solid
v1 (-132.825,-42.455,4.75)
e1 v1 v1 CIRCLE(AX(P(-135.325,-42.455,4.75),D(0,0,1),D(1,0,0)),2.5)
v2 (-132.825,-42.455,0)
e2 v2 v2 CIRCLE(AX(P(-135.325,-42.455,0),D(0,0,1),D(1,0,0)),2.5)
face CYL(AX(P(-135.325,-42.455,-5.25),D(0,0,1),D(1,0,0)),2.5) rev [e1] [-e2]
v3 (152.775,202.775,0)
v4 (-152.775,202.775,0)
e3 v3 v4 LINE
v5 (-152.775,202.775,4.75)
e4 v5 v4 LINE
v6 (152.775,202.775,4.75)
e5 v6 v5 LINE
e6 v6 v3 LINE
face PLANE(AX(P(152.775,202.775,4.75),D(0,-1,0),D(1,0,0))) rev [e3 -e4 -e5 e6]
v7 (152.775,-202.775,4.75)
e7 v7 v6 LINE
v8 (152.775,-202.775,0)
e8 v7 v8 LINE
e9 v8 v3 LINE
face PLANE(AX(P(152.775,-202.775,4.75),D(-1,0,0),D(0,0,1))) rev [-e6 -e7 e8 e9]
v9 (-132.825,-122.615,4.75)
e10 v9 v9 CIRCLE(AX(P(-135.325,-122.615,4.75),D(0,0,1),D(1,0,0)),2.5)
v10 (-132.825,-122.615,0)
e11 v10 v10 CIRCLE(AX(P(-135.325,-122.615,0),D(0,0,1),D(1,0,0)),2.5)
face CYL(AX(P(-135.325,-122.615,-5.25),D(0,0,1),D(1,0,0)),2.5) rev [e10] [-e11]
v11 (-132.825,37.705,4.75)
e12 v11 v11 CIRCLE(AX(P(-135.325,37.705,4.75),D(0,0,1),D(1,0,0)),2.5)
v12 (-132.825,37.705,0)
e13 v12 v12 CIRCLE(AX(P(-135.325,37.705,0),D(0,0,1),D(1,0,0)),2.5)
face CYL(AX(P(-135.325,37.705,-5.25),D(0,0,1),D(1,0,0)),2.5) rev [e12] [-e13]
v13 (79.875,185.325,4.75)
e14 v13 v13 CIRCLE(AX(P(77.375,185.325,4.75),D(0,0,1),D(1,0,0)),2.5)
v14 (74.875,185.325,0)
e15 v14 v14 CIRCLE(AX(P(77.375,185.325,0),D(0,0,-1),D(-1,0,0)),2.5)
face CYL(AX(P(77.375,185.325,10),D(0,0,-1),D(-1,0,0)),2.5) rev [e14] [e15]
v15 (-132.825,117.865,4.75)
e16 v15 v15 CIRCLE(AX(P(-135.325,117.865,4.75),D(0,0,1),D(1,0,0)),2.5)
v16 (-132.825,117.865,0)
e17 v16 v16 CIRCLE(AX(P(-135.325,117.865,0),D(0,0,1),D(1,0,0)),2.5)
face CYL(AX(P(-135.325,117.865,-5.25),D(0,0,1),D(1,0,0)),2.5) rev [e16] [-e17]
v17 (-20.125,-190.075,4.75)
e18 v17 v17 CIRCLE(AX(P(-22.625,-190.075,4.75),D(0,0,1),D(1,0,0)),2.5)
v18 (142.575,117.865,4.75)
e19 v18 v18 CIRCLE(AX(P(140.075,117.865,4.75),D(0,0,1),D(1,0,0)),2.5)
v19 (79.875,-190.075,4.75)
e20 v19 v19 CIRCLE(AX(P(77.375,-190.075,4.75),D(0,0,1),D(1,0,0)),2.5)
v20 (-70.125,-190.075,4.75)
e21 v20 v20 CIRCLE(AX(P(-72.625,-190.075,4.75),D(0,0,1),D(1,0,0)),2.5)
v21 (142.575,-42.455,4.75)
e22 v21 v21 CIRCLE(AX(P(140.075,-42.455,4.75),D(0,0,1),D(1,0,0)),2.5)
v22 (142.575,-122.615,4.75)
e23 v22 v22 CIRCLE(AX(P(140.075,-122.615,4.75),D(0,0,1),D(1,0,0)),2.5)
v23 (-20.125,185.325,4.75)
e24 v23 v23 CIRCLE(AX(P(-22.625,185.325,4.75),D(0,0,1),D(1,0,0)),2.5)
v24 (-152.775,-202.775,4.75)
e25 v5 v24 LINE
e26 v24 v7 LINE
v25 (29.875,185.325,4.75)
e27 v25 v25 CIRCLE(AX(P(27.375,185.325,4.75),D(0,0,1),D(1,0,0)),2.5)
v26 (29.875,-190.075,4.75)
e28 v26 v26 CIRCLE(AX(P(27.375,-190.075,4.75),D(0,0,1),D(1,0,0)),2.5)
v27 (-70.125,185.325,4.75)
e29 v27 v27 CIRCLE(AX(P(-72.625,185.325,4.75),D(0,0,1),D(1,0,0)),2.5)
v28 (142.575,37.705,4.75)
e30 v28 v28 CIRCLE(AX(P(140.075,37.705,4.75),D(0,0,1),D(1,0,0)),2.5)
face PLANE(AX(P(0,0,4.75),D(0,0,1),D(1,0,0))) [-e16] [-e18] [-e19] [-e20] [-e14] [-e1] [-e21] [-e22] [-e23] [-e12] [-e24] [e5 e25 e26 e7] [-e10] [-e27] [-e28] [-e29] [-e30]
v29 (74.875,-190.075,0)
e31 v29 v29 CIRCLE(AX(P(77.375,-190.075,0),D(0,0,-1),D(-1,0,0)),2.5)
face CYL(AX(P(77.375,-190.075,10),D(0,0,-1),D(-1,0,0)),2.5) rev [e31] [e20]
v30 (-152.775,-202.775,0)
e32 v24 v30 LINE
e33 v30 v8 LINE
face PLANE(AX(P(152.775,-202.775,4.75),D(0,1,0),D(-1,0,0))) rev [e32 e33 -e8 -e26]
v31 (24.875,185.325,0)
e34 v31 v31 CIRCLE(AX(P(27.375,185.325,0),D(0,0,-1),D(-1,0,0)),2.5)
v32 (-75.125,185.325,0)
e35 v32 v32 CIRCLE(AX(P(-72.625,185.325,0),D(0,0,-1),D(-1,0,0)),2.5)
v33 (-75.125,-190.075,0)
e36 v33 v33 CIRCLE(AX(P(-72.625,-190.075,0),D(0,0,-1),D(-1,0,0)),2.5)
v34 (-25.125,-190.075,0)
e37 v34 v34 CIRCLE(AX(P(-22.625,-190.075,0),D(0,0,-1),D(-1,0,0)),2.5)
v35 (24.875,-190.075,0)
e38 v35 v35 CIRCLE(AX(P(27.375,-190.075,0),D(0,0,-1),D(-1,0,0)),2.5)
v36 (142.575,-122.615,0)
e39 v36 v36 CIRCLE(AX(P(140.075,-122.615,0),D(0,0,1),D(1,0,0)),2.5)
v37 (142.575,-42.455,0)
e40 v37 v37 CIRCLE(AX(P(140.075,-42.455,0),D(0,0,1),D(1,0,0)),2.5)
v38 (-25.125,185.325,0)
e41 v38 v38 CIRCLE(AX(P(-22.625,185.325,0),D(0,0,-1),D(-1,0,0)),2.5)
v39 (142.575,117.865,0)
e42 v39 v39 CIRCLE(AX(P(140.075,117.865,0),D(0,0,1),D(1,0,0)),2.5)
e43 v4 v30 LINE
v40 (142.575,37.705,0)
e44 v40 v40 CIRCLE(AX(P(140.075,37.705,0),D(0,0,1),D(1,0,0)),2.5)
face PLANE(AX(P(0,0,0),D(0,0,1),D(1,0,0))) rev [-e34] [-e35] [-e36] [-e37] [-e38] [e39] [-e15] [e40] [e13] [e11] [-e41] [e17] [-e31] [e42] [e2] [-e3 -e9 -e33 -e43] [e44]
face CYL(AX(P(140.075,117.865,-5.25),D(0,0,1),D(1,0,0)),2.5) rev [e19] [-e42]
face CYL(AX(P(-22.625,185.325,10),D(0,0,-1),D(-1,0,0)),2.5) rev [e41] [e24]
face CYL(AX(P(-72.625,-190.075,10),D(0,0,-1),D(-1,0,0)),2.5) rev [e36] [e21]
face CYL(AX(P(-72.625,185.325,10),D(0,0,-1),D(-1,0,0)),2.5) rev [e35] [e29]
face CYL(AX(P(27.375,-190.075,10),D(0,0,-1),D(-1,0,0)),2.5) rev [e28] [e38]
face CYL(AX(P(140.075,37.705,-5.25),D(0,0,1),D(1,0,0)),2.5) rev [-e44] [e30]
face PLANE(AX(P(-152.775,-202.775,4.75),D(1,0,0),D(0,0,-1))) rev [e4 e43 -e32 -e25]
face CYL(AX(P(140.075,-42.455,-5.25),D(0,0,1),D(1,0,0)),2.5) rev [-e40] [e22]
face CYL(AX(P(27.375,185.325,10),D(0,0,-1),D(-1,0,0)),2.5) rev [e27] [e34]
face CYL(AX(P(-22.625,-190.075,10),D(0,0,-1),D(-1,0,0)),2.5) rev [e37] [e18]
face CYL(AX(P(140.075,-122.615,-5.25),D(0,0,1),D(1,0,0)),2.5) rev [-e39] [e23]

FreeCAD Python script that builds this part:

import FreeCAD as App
import Part
import Sketcher

V = App.Vector


def add_polygon(sketch, points):
    """Adds a closed chain of lines whose ends are joined by coincident constraints."""
    first, n = sketch.GeometryCount, len(points)
    for a, b in zip(points, points[1:] + points[:1]):
        sketch.addGeometry(Part.LineSegment(App.Vector(*a, 0), App.Vector(*b, 0)), False)
    for i in range(n):
        sketch.addConstraint(Sketcher.Constraint("Coincident", first + i, 2, first + (i + 1) % n, 1))

doc = App.newDocument("Part")
body = doc.addObject("PartDesign::Body", "Body")

sketch1 = body.newObject("Sketcher::SketchObject", "Sketch")
sketch1.AttachmentSupport = (doc.getObject("XY_Plane"), [""])
sketch1.MapMode = "FlatFace"
add_polygon(sketch1, [(-153, 203), (-153, -203), (153, -203), (153, 203)])
sketch1.addConstraint(Sketcher.Constraint("Vertical", 0))
sketch1.addConstraint(Sketcher.Constraint("Horizontal", 1))
sketch1.addConstraint(Sketcher.Constraint("Vertical", 2))
sketch1.addConstraint(Sketcher.Constraint("Horizontal", 3))
sketch1.addConstraint(Sketcher.Constraint("Symmetric", 0, 2, 2, 2, -1, 1))
sketch1.addConstraint(Sketcher.Constraint("DistanceX", 1, 1, 1, 2, 305.55))
sketch1.addConstraint(Sketcher.Constraint("DistanceY", 0, 2, 0, 1, 405.55))
pad1 = body.newObject("PartDesign::Pad", "Pad")
pad1.Profile = sketch1
pad1.Length = 4.75

sketch2 = body.newObject("Sketcher::SketchObject", "Sketch001")
sketch2.AttachmentSupport = (doc.getObject("XY_Plane"), [""])
sketch2.MapMode = "FlatFace"
sketch2.AttachmentOffset = App.Placement(V(0, 0, 4.75), App.Rotation())
sketch2.addGeometry(Part.Circle(V(140.1, 37.7, 0), V(0, 0, 1), 2.5), False)
sketch2.addGeometry(Part.Circle(V(140.1, 117.9, 0), V(0, 0, 1), 2.5), False)
sketch2.addGeometry(Part.Circle(V(140.1, -42.5, 0), V(0, 0, 1), 2.5), False)
sketch2.addGeometry(Part.Circle(V(140.1, -122.6, 0), V(0, 0, 1), 2.5), False)
sketch2.addConstraint(Sketcher.Constraint("Equal", 0, 1))
sketch2.addConstraint(Sketcher.Constraint("Equal", 1, 2))
sketch2.addConstraint(Sketcher.Constraint("Equal", 2, 3))
sketch2.addConstraint(Sketcher.Constraint("Vertical", 0, 3, 1, 3))
sketch2.addConstraint(Sketcher.Constraint("Vertical", 1, 3, 2, 3))
sketch2.addConstraint(Sketcher.Constraint("Vertical", 2, 3, 3, 3))
sketch2.addConstraint(Sketcher.Constraint("Diameter", 0, 5.0))
sketch2.addConstraint(Sketcher.Constraint("DistanceY", 0, 3, 1, 3, 80.16))
sketch2.addConstraint(Sketcher.Constraint("DistanceY", 2, 3, 0, 3, 80.16))
sketch2.addConstraint(Sketcher.Constraint("DistanceY", 3, 3, 2, 3, 80.16))
sketch2.addConstraint(Sketcher.Constraint("DistanceX", -1, 1, 0, 3, 140.075))
sketch2.addConstraint(Sketcher.Constraint("DistanceY", -1, 1, 0, 3, 37.705))
pocket1 = body.newObject("PartDesign::Pocket", "Pocket")
pocket1.Profile = sketch2
pocket1.Length = 10

sketch3 = body.newObject("Sketcher::SketchObject", "Sketch002")
sketch3.AttachmentSupport = (doc.getObject("XY_Plane"), [""])
sketch3.MapMode = "FlatFace"
sketch3.AttachmentOffset = App.Placement(V(0, 0, 4.75), App.Rotation())
sketch3.addGeometry(Part.Circle(V(-135.3, -122.6, 0), V(0, 0, 1), 2.5), False)
sketch3.addGeometry(Part.Circle(V(-135.3, -42.5, 0), V(0, 0, 1), 2.5), False)
sketch3.addGeometry(Part.Circle(V(-135.3, 37.7, 0), V(0, 0, 1), 2.5), False)
sketch3.addGeometry(Part.Circle(V(-135.3, 117.9, 0), V(0, 0, 1), 2.5), False)
sketch3.addConstraint(Sketcher.Constraint("Equal", 0, 1))
sketch3.addConstraint(Sketcher.Constraint("Equal", 1, 2))
sketch3.addConstraint(Sketcher.Constraint("Equal", 2, 3))
sketch3.addConstraint(Sketcher.Constraint("Vertical", 0, 3, 1, 3))
sketch3.addConstraint(Sketcher.Constraint("Vertical", 1, 3, 2, 3))
sketch3.addConstraint(Sketcher.Constraint("Vertical", 2, 3, 3, 3))
sketch3.addConstraint(Sketcher.Constraint("Diameter", 0, 5.0))
sketch3.addConstraint(Sketcher.Constraint("DistanceY", 0, 3, 1, 3, 80.16))
sketch3.addConstraint(Sketcher.Constraint("DistanceY", 1, 3, 2, 3, 80.16))
sketch3.addConstraint(Sketcher.Constraint("DistanceY", 2, 3, 3, 3, 80.16))
sketch3.addConstraint(Sketcher.Constraint("DistanceX", 0, 3, -1, 1, 135.325))
sketch3.addConstraint(Sketcher.Constraint("DistanceY", 0, 3, -1, 1, 122.615))
pocket2 = body.newObject("PartDesign::Pocket", "Pocket001")
pocket2.Profile = sketch3
pocket2.Length = 10

sketch4 = body.newObject("Sketcher::SketchObject", "Sketch003")
sketch4.AttachmentSupport = (doc.getObject("XY_Plane"), [""])
sketch4.MapMode = "FlatFace"
sketch4.addGeometry(Part.Circle(V(-22.6, 185.3, 0), V(0, 0, 1), 2.5), False)
sketch4.addGeometry(Part.Circle(V(-72.6, 185.3, 0), V(0, 0, 1), 2.5), False)
sketch4.addGeometry(Part.Circle(V(77.4, 185.3, 0), V(0, 0, 1), 2.5), False)
sketch4.addGeometry(Part.Circle(V(27.4, 185.3, 0), V(0, 0, 1), 2.5), False)
sketch4.addConstraint(Sketcher.Constraint("Equal", 0, 1))
sketch4.addConstraint(Sketcher.Constraint("Equal", 1, 2))
sketch4.addConstraint(Sketcher.Constraint("Equal", 2, 3))
sketch4.addConstraint(Sketcher.Constraint("Horizontal", 0, 3, 1, 3))
sketch4.addConstraint(Sketcher.Constraint("Horizontal", 1, 3, 2, 3))
sketch4.addConstraint(Sketcher.Constraint("Horizontal", 2, 3, 3, 3))
sketch4.addConstraint(Sketcher.Constraint("Diameter", 0, 5.0))
sketch4.addConstraint(Sketcher.Constraint("DistanceX", 1, 3, 0, 3, 50.0))
sketch4.addConstraint(Sketcher.Constraint("DistanceX", 0, 3, 2, 3, 100.0))
sketch4.addConstraint(Sketcher.Constraint("DistanceX", 0, 3, 3, 3, 50.0))
sketch4.addConstraint(Sketcher.Constraint("DistanceX", 0, 3, -1, 1, 22.625))
sketch4.addConstraint(Sketcher.Constraint("DistanceY", -1, 1, 0, 3, 185.325))
pocket3 = body.newObject("PartDesign::Pocket", "Pocket002")
pocket3.Profile = sketch4
pocket3.Length = 10
pocket3.Reversed = True

sketch5 = body.newObject("Sketcher::SketchObject", "Sketch004")
sketch5.AttachmentSupport = (doc.getObject("XY_Plane"), [""])
sketch5.MapMode = "FlatFace"
sketch5.addGeometry(Part.Circle(V(77.4, -190.1, 0), V(0, 0, 1), 2.5), False)
sketch5.addGeometry(Part.Circle(V(27.4, -190.1, 0), V(0, 0, 1), 2.5), False)
sketch5.addGeometry(Part.Circle(V(-22.6, -190.1, 0), V(0, 0, 1), 2.5), False)
sketch5.addGeometry(Part.Circle(V(-72.6, -190.1, 0), V(0, 0, 1), 2.5), False)
sketch5.addConstraint(Sketcher.Constraint("Equal", 0, 1))
sketch5.addConstraint(Sketcher.Constraint("Equal", 1, 2))
sketch5.addConstraint(Sketcher.Constraint("Equal", 2, 3))
sketch5.addConstraint(Sketcher.Constraint("Horizontal", 0, 3, 1, 3))
sketch5.addConstraint(Sketcher.Constraint("Horizontal", 1, 3, 2, 3))
sketch5.addConstraint(Sketcher.Constraint("Horizontal", 2, 3, 3, 3))
sketch5.addConstraint(Sketcher.Constraint("Diameter", 0, 5.0))
sketch5.addConstraint(Sketcher.Constraint("DistanceX", 1, 3, 0, 3, 50.0))
sketch5.addConstraint(Sketcher.Constraint("DistanceX", 2, 3, 1, 3, 50.0))
sketch5.addConstraint(Sketcher.Constraint("DistanceX", 3, 3, 2, 3, 50.0))
sketch5.addConstraint(Sketcher.Constraint("DistanceX", -1, 1, 0, 3, 77.375))
sketch5.addConstraint(Sketcher.Constraint("DistanceY", 0, 3, -1, 1, 190.075))
pocket4 = body.newObject("PartDesign::Pocket", "Pocket003")
pocket4.Profile = sketch5
pocket4.Length = 10
pocket4.Reversed = True

doc.recompute()
